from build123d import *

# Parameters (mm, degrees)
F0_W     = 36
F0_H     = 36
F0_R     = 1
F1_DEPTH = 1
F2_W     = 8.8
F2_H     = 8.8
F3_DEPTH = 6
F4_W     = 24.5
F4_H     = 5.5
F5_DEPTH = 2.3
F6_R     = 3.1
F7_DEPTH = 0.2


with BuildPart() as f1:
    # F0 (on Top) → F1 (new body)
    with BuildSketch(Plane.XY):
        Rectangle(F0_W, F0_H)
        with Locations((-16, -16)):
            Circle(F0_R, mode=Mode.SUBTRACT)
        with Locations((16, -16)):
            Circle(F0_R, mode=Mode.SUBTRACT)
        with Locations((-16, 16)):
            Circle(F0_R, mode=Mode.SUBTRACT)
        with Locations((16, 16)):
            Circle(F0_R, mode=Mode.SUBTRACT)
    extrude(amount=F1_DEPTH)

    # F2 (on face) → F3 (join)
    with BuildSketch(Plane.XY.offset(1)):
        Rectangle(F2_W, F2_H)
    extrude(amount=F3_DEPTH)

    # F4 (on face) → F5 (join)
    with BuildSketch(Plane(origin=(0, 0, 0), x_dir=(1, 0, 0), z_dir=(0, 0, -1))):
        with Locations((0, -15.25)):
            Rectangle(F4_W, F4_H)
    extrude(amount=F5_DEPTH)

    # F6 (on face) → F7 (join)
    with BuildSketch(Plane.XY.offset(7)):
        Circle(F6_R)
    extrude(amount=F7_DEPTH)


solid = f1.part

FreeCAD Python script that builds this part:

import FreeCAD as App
import Part
import Sketcher
from FreeCAD import Vector


def add_polygon(sketch, points):
    """Adds a closed chain of lines whose ends are joined by coincident constraints."""
    first, n = sketch.GeometryCount, len(points)
    for a, b in zip(points, points[1:] + points[:1]):
        sketch.addGeometry(Part.LineSegment(App.Vector(*a, 0), App.Vector(*b, 0)), False)
    for i in range(n):
        sketch.addConstraint(Sketcher.Constraint("Coincident", first + i, 2, first + (i + 1) % n, 1))

doc = App.newDocument("Part")
params = doc.addObject("Spreadsheet::Sheet", "Params")
for row, (alias, value) in enumerate([
    ("sketch1_diameter", "2 mm"),
    ("sketch1_width", "36 mm"),
    ("pad1_length", "1 mm"),
    ("sketch2_width", "8.8 mm"),
    ("pad2_length", "6 mm"),
    ("sketch3_width", "24.5 mm"),
    ("sketch3_height", "5.5 mm"),
    ("pad3_length", "2.3 mm"),
    ("sketch4_diameter", "6.2 mm"),
    ("pad4_length", "0.2 mm"),
], start=1):
    params.set(f"A{row}", alias)
    params.set(f"B{row}", "=" + value)
    params.setAlias(f"B{row}", alias)

body = doc.addObject("PartDesign::Body", "Body")

# Sketch on XY plane
sketch1 = doc.addObject("Sketcher::SketchObject", "Sketch")
body.addObject(sketch1)
sketch1.AttachmentSupport = (doc.XY_Plane, [""])
sketch1.MapMode = "FlatFace"
add_polygon(sketch1, [(-18, 18), (-18, -18), (18, -18), (18, 18)])  # lines 0-3
sketch1.addGeometry(Part.Circle(Vector(-16, -16, 0), Vector(0, 0, 1), 1), False)  # 4
sketch1.addGeometry(Part.Circle(Vector(16, -16, 0), Vector(0, 0, 1), 1), False)  # 5
sketch1.addGeometry(Part.Circle(Vector(-16, 16, 0), Vector(0, 0, 1), 1), False)  # 6
sketch1.addGeometry(Part.Circle(Vector(16, 16, 0), Vector(0, 0, 1), 1), False)  # 7
sketch1.addConstraint(Sketcher.Constraint("Vertical", 0))
sketch1.addConstraint(Sketcher.Constraint("Horizontal", 1))
sketch1.addConstraint(Sketcher.Constraint("Vertical", 2))
sketch1.addConstraint(Sketcher.Constraint("Horizontal", 3))
sketch1.addConstraint(Sketcher.Constraint("Equal", 4, 5))
sketch1.addConstraint(Sketcher.Constraint("Equal", 5, 6))
sketch1.addConstraint(Sketcher.Constraint("Equal", 6, 7))
sketch1.addConstraint(Sketcher.Constraint("Symmetric", 5, 3, 6, 3, -1, 1))
sketch1.addConstraint(Sketcher.Constraint("Symmetric", 4, 3, 7, 3, -1, 1))
sketch1.addConstraint(Sketcher.Constraint("Symmetric", 0, 2, 2, 2, -1, 1))
sketch1.addConstraint(Sketcher.Constraint("Symmetric", 4, 3, 5, 3, -2))
sketch1.addConstraint(Sketcher.Constraint("Equal", 3, 0))
sketch1.addConstraint(Sketcher.Constraint("Diameter", 4, 2.0))
sketch1.addConstraint(Sketcher.Constraint("DistanceX", 1, 1, 1, 2, 36.0))
sketch1.addConstraint(Sketcher.Constraint("DistanceX", 4, 3, -1, 1, 16.0))
sketch1.addConstraint(Sketcher.Constraint("DistanceY", 4, 3, -1, 1, 16.0))
sketch1.setExpression("Constraints[16]", "Params.sketch1_diameter")
sketch1.setExpression("Constraints[17]", "Params.sketch1_width")
pad1 = doc.addObject("PartDesign::Pad", "Pad")
body.addObject(pad1)
pad1.Profile = sketch1
pad1.setExpression("Length", "Params.pad1_length")

# Sketch on XY plane
sketch2 = doc.addObject("Sketcher::SketchObject", "Sketch001")
body.addObject(sketch2)
sketch2.AttachmentSupport = (doc.XY_Plane, [""])
sketch2.MapMode = "FlatFace"
sketch2.AttachmentOffset = App.Placement(Vector(0, 0, 1), App.Rotation())
add_polygon(sketch2, [(-4, 4), (-4, -4), (4, -4), (4, 4)])  # lines 0-3
sketch2.addConstraint(Sketcher.Constraint("Vertical", 0))
sketch2.addConstraint(Sketcher.Constraint("Horizontal", 1))
sketch2.addConstraint(Sketcher.Constraint("Vertical", 2))
sketch2.addConstraint(Sketcher.Constraint("Horizontal", 3))
sketch2.addConstraint(Sketcher.Constraint("Symmetric", 0, 2, 2, 2, -1, 1))
sketch2.addConstraint(Sketcher.Constraint("Equal", 3, 0))
sketch2.addConstraint(Sketcher.Constraint("DistanceX", 1, 1, 1, 2, 8.8))
sketch2.setExpression("Constraints[10]", "Params.sketch2_width")
pad2 = doc.addObject("PartDesign::Pad", "Pad001")
body.addObject(pad2)
pad2.Profile = sketch2
pad2.setExpression("Length", "Params.pad2_length")

# Sketch on XY plane
sketch3 = doc.addObject("Sketcher::SketchObject", "Sketch002")
body.addObject(sketch3)
sketch3.AttachmentSupport = (doc.XY_Plane, [""])
sketch3.MapMode = "FlatFace"
add_polygon(sketch3, [(-12, 12), (-12, 18), (12, 18), (12, 12)])  # lines 0-3
sketch3.addConstraint(Sketcher.Constraint("Vertical", 0))
sketch3.addConstraint(Sketcher.Constraint("Horizontal", 1))
sketch3.addConstraint(Sketcher.Constraint("Vertical", 2))
sketch3.addConstraint(Sketcher.Constraint("Horizontal", 3))
sketch3.addConstraint(Sketcher.Constraint("DistanceX", 1, 1, 1, 2, 24.5))
sketch3.addConstraint(Sketcher.Constraint("DistanceY", 0, 1, 0, 2, 5.5))
sketch3.addConstraint(Sketcher.Constraint("DistanceY", -1, 1, 0, 2, 18.0))
sketch3.addConstraint(Sketcher.Constraint("DistanceX", 0, 2, -1, 1, 12.25))
sketch3.setExpression("Constraints[8]", "Params.sketch3_width")
sketch3.setExpression("Constraints[9]", "Params.sketch3_height")
pad3 = doc.addObject("PartDesign::Pad", "Pad002")
body.addObject(pad3)
pad3.Profile = sketch3
pad3.setExpression("Length", "Params.pad3_length")
pad3.Reversed = True

# Sketch on XY plane
sketch4 = doc.addObject("Sketcher::SketchObject", "Sketch003")
body.addObject(sketch4)
sketch4.AttachmentSupport = (doc.XY_Plane, [""])
sketch4.MapMode = "FlatFace"
sketch4.AttachmentOffset = App.Placement(Vector(0, 0, 7), App.Rotation())
sketch4.addGeometry(Part.Circle(Vector(0, 0, 0), Vector(0, 0, 1), 3.1), False)
sketch4.addConstraint(Sketcher.Constraint("Coincident", 0, 3, -1, 1))
sketch4.addConstraint(Sketcher.Constraint("Diameter", 0, 6.2))
sketch4.setExpression("Constraints[1]", "Params.sketch4_diameter")
pad4 = doc.addObject("PartDesign::Pad", "Pad003")
body.addObject(pad4)
pad4.Profile = sketch4
pad4.setExpression("Length", "Params.pad4_length")

doc.recompute()
